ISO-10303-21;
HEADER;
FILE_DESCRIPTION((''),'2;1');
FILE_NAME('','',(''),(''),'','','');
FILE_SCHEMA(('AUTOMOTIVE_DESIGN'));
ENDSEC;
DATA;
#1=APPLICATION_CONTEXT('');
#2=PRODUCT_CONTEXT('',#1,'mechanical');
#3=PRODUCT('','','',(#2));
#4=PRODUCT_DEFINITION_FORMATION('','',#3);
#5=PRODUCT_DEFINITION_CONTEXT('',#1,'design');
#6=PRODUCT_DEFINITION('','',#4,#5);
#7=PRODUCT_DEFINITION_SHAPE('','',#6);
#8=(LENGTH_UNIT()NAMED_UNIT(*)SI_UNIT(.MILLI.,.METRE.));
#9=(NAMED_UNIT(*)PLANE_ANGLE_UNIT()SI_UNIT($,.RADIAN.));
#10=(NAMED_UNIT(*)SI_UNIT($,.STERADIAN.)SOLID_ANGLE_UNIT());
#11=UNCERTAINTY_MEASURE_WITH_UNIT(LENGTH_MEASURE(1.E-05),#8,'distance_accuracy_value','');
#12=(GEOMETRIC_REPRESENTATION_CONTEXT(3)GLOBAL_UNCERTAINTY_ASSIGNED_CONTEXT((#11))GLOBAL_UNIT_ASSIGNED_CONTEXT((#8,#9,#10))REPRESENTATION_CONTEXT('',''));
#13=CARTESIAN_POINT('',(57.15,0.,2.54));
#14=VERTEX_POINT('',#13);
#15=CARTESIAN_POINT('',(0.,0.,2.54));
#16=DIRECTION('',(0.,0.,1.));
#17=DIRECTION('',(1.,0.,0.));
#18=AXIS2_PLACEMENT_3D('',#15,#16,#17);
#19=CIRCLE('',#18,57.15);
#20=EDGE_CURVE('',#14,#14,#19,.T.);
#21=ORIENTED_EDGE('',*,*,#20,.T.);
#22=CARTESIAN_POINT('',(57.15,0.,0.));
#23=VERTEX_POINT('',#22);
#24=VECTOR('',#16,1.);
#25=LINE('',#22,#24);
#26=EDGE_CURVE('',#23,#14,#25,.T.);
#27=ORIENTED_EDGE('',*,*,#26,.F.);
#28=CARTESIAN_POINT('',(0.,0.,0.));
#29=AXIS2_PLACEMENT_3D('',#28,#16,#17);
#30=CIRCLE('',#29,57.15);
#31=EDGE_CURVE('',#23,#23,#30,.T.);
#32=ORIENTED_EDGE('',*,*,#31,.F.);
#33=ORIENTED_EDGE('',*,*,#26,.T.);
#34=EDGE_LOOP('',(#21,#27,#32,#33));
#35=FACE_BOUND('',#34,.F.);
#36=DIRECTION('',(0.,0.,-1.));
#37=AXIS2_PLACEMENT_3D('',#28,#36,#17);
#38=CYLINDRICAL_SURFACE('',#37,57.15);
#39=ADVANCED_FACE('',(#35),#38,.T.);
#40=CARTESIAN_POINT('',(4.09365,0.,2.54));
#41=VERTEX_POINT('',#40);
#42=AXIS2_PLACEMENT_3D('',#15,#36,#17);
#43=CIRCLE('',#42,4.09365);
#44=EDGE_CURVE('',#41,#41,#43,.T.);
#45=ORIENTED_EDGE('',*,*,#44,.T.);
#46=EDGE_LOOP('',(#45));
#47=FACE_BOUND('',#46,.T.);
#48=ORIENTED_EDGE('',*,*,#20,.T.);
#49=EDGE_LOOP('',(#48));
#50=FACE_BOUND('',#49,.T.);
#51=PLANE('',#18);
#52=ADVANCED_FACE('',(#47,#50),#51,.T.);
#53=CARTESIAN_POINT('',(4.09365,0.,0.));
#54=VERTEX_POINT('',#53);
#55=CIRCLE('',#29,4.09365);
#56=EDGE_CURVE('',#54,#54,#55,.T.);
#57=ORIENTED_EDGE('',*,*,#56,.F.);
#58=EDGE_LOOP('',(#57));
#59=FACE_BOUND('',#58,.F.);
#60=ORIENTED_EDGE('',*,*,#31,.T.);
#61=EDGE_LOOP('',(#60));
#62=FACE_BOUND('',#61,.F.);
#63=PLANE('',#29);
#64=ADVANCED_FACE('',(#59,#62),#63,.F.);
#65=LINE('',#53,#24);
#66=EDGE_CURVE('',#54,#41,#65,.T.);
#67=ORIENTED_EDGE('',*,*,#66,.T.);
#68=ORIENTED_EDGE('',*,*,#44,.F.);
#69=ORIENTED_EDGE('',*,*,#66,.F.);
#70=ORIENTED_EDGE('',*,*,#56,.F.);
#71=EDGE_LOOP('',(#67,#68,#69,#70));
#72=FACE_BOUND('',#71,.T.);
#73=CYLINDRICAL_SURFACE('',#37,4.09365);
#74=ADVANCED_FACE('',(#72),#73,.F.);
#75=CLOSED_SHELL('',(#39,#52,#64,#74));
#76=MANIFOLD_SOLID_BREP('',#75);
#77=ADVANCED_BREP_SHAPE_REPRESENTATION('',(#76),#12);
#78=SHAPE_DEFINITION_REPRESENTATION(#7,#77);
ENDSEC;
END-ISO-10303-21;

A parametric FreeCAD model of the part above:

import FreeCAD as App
import Part
import Sketcher

V = App.Vector
Q = App.Units.Quantity

doc = App.newDocument("Part")
params = doc.addObject("Spreadsheet::Sheet", "Params")
for row, (alias, value) in enumerate([
    ("sketch1_diameter", "4.5 in"),
    ("pad1_length", "0.1 in"),
    ("pocket1_length", "1 in"),
    ("pocket2_length", "1 in"),
], start=1):
    params.set(f"A{row}", alias)
    params.set(f"B{row}", "=" + value)
    params.setAlias(f"B{row}", alias)

body = doc.addObject("PartDesign::Body", "Body")

# Sketch on XY plane
sketch1 = body.newObject("Sketcher::SketchObject", "Sketch")
sketch1.AttachmentSupport = (doc.getObject("XY_Plane"), [""])
sketch1.MapMode = "FlatFace"
sketch1.addGeometry(Part.Circle(V(0, 0, 0), V(0, 0, 1), 57), False)
sketch1.addConstraint([
    Sketcher.Constraint("Coincident", 0, 3, -1, 1),
    Sketcher.Constraint("Diameter", 0, Q("4.5 in")),
])
sketch1.setExpression("Constraints[1]", "Params.sketch1_diameter")
pad1 = body.newObject("PartDesign::Pad", "Pad")
pad1.Profile = sketch1
pad1.setExpression("Length", "Params.pad1_length")

# Sketch on XY plane
sketch2 = body.newObject("Sketcher::SketchObject", "Sketch001")
sketch2.AttachmentSupport = (doc.getObject("XY_Plane"), [""])
sketch2.MapMode = "FlatFace"
sketch2.addGeometry(Part.Circle(V(0, 0, 0), V(0, 0, 1), 4.1), False)
sketch2.addConstraint([
    Sketcher.Constraint("Coincident", 0, 3, -1, 1),
    Sketcher.Constraint("Diameter", 0, Q("8.1873 mm")),
])
pocket1 = body.newObject("PartDesign::Pocket", "Pocket")
pocket1.Profile = sketch2
pocket1.setExpression("Length", "Params.pocket1_length")

# Sketch on XY plane
sketch3 = body.newObject("Sketcher::SketchObject", "Sketch002")
sketch3.AttachmentSupport = (doc.getObject("XY_Plane"), [""])
sketch3.MapMode = "FlatFace"
sketch3.addGeometry(Part.Circle(V(0, 0, 0), V(0, 0, 1), 4.1), False)
sketch3.addConstraint([
    Sketcher.Constraint("Coincident", 0, 3, -1, 1),
    Sketcher.Constraint("Diameter", 0, Q("8.1873 mm")),
])
pocket2 = body.newObject("PartDesign::Pocket", "Pocket001")
pocket2.Profile = sketch3
pocket2.setExpression("Length", "Params.pocket2_length")
pocket2.Reversed = True

doc.recompute()
